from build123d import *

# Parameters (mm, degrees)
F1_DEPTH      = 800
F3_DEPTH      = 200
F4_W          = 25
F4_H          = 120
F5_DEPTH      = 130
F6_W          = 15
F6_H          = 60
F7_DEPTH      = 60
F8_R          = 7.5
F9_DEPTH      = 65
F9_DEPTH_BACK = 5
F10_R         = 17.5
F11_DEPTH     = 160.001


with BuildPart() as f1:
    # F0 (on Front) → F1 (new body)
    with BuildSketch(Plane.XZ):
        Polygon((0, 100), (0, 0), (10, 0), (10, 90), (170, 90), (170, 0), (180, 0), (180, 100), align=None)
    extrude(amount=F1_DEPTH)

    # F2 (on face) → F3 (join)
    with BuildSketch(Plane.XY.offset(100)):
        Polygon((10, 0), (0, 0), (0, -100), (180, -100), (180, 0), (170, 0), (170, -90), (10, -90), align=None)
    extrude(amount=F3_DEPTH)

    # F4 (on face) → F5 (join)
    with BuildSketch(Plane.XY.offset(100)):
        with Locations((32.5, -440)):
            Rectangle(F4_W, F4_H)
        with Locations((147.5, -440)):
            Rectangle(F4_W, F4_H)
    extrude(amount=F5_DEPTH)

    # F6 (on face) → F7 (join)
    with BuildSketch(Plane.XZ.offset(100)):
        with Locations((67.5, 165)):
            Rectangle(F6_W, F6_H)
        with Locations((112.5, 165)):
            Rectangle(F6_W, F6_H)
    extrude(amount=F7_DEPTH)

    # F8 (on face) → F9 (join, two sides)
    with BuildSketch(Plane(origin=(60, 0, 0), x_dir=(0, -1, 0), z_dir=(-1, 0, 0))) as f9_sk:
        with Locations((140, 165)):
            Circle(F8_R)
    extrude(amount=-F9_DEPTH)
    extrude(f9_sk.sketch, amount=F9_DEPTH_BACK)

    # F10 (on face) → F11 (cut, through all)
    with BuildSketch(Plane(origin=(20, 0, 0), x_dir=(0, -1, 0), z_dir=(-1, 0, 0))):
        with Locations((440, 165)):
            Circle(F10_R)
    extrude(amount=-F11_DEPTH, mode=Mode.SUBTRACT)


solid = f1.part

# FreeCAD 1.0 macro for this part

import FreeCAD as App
import Part
import Sketcher
from FreeCAD import Vector


def add_polygon(sketch, points):
    """Adds a closed chain of lines whose ends are joined by coincident constraints."""
    first, n = sketch.GeometryCount, len(points)
    for a, b in zip(points, points[1:] + points[:1]):
        sketch.addGeometry(Part.LineSegment(App.Vector(*a, 0), App.Vector(*b, 0)), False)
    for i in range(n):
        sketch.addConstraint(Sketcher.Constraint("Coincident", first + i, 2, first + (i + 1) % n, 1))

doc = App.newDocument("Part")
params = doc.addObject("Spreadsheet::Sheet", "Params")
for row, (alias, value) in enumerate([
    ("sketch1_width", "10 mm"),
    ("sketch1_width2", "160 mm"),
    ("sketch1_height", "100 mm"),
    ("sketch1_height2", "90 mm"),
    ("pad1_length", "800 mm"),
    ("sketch2_width", "10 mm"),
    ("sketch2_width2", "180 mm"),
    ("sketch2_height", "100 mm"),
    ("sketch2_height2", "90 mm"),
    ("pad2_length", "200 mm"),
    ("sketch3_width", "25 mm"),
    ("sketch3_height", "120 mm"),
    ("pad3_length", "130 mm"),
    ("sketch4_width", "15 mm"),
    ("sketch4_height", "60 mm"),
    ("pad4_length", "60 mm"),
    ("sketch5_diameter", "15 mm"),
    ("pad5_length", "65 mm"),
    ("pad5_length2", "5 mm"),
    ("sketch6_diameter", "35 mm"),
], start=1):
    params.set(f"A{row}", alias)
    params.set(f"B{row}", "=" + value)
    params.setAlias(f"B{row}", alias)

body = doc.addObject("PartDesign::Body", "Body")

# Sketch on XZ plane
sketch1 = doc.addObject("Sketcher::SketchObject", "Sketch")
body.addObject(sketch1)
sketch1.AttachmentSupport = (doc.XZ_Plane, [""])
sketch1.MapMode = "FlatFace"
add_polygon(sketch1, [(0, 100), (0, 0), (10, 0), (10, 90), (170, 90), (170, 0), (180, 0), (180, 100)])  # lines 0-7
sketch1.addConstraint([
    Sketcher.Constraint("Vertical", 0),
    Sketcher.Constraint("Horizontal", 1),
    Sketcher.Constraint("Vertical", 2),
    Sketcher.Constraint("Horizontal", 3),
    Sketcher.Constraint("Vertical", 4),
    Sketcher.Constraint("Horizontal", 5),
    Sketcher.Constraint("Vertical", 6),
    Sketcher.Constraint("Horizontal", 7),
    Sketcher.Constraint("Coincident", 0, 2, -1, 1),
    Sketcher.Constraint("PointOnObject", 4, 2, -1),
    Sketcher.Constraint("Equal", 1, 5),
    Sketcher.Constraint("DistanceX", 1, 1, 1, 2, 10.0),
    Sketcher.Constraint("DistanceX", 3, 1, 3, 2, 160.0),
    Sketcher.Constraint("DistanceY", 0, 2, 0, 1, 100.0),
    Sketcher.Constraint("DistanceY", 2, 1, 2, 2, 90.0),
])
sketch1.setExpression("Constraints[19]", "Params.sketch1_width")
sketch1.setExpression("Constraints[20]", "Params.sketch1_width2")
sketch1.setExpression("Constraints[21]", "Params.sketch1_height")
sketch1.setExpression("Constraints[22]", "Params.sketch1_height2")
pad1 = doc.addObject("PartDesign::Pad", "Pad")
body.addObject(pad1)
pad1.Profile = sketch1
pad1.setExpression("Length", "Params.pad1_length")

# Sketch on XY plane
sketch2 = doc.addObject("Sketcher::SketchObject", "Sketch001")
body.addObject(sketch2)
sketch2.AttachmentSupport = (doc.XY_Plane, [""])
sketch2.MapMode = "FlatFace"
sketch2.AttachmentOffset = App.Placement(Vector(0, 0, 100), App.Rotation())
add_polygon(sketch2, [(10, 0), (0, 0), (0, -100), (180, -100), (180, 0), (170, 0), (170, -90), (10, -90)])  # lines 0-7
sketch2.addConstraint([
    Sketcher.Constraint("Horizontal", 0),
    Sketcher.Constraint("Vertical", 1),
    Sketcher.Constraint("Horizontal", 2),
    Sketcher.Constraint("Vertical", 3),
    Sketcher.Constraint("Horizontal", 4),
    Sketcher.Constraint("Vertical", 5),
    Sketcher.Constraint("Horizontal", 6),
    Sketcher.Constraint("Vertical", 7),
    Sketcher.Constraint("Coincident", 0, 2, -1, 1),
    Sketcher.Constraint("PointOnObject", 3, 2, -1),
    Sketcher.Constraint("Equal", 0, 4),
    Sketcher.Constraint("DistanceX", 0, 2, 0, 1, 10.0),
    Sketcher.Constraint("DistanceX", 2, 1, 2, 2, 180.0),
    Sketcher.Constraint("DistanceY", 1, 2, 1, 1, 100.0),
    Sketcher.Constraint("DistanceY", 5, 2, 5, 1, 90.0),
])
sketch2.setExpression("Constraints[19]", "Params.sketch2_width")
sketch2.setExpression("Constraints[20]", "Params.sketch2_width2")
sketch2.setExpression("Constraints[21]", "Params.sketch2_height")
sketch2.setExpression("Constraints[22]", "Params.sketch2_height2")
pad2 = doc.addObject("PartDesign::Pad", "Pad001")
body.addObject(pad2)
pad2.Profile = sketch2
pad2.setExpression("Length", "Params.pad2_length")

# Sketch on XY plane
sketch3 = doc.addObject("Sketcher::SketchObject", "Sketch002")
body.addObject(sketch3)
sketch3.AttachmentSupport = (doc.XY_Plane, [""])
sketch3.MapMode = "FlatFace"
sketch3.AttachmentOffset = App.Placement(Vector(0, 0, 100), App.Rotation())
add_polygon(sketch3, [(20, -380), (20, -500), (45, -500), (45, -380)])  # lines 0-3
add_polygon(sketch3, [(135, -380), (135, -500), (160, -500), (160, -380)])  # lines 4-7
sketch3.addConstraint([
    Sketcher.Constraint("Vertical", 0),
    Sketcher.Constraint("Horizontal", 1),
    Sketcher.Constraint("Vertical", 2),
    Sketcher.Constraint("Horizontal", 3),
    Sketcher.Constraint("Vertical", 4),
    Sketcher.Constraint("Horizontal", 5),
    Sketcher.Constraint("Vertical", 6),
    Sketcher.Constraint("Horizontal", 7),
    Sketcher.Constraint("Horizontal", 1, 2, 4, 2),
    Sketcher.Constraint("Horizontal", 3, 2, 6, 2),
    Sketcher.Constraint("Equal", 3, 5),
    Sketcher.Constraint("DistanceX", 1, 1, 1, 2, 25.0),
    Sketcher.Constraint("DistanceY", 0, 2, 0, 1, 120.0),
    Sketcher.Constraint("DistanceX", -1, 1, 0, 2, 20.0),
    Sketcher.Constraint("DistanceY", 0, 2, -1, 1, 500.0),
    Sketcher.Constraint("DistanceX", -1, 1, 4, 2, 135.0),
])
sketch3.setExpression("Constraints[19]", "Params.sketch3_width")
sketch3.setExpression("Constraints[20]", "Params.sketch3_height")
pad3 = doc.addObject("PartDesign::Pad", "Pad002")
body.addObject(pad3)
pad3.Profile = sketch3
pad3.setExpression("Length", "Params.pad3_length")

# Sketch on XZ plane
sketch4 = doc.addObject("Sketcher::SketchObject", "Sketch003")
body.addObject(sketch4)
sketch4.AttachmentSupport = (doc.XZ_Plane, [""])
sketch4.MapMode = "FlatFace"
sketch4.AttachmentOffset = App.Placement(Vector(0, 0, 100), App.Rotation())
add_polygon(sketch4, [(60, 195), (60, 135), (75, 135), (75, 195)])  # lines 0-3
add_polygon(sketch4, [(105, 195), (105, 135), (120, 135), (120, 195)])  # lines 4-7
sketch4.addConstraint([
    Sketcher.Constraint("Vertical", 0),
    Sketcher.Constraint("Horizontal", 1),
    Sketcher.Constraint("Vertical", 2),
    Sketcher.Constraint("Horizontal", 3),
    Sketcher.Constraint("Vertical", 4),
    Sketcher.Constraint("Horizontal", 5),
    Sketcher.Constraint("Vertical", 6),
    Sketcher.Constraint("Horizontal", 7),
    Sketcher.Constraint("Horizontal", 1, 2, 4, 2),
    Sketcher.Constraint("Horizontal", 3, 2, 6, 2),
    Sketcher.Constraint("Equal", 3, 5),
    Sketcher.Constraint("DistanceX", 1, 1, 1, 2, 15.0),
    Sketcher.Constraint("DistanceY", 0, 2, 0, 1, 60.0),
    Sketcher.Constraint("DistanceX", -1, 1, 0, 2, 60.0),
    Sketcher.Constraint("DistanceY", -1, 1, 0, 2, 135.0),
    Sketcher.Constraint("DistanceX", -1, 1, 4, 2, 105.0),
])
sketch4.setExpression("Constraints[19]", "Params.sketch4_width")
sketch4.setExpression("Constraints[20]", "Params.sketch4_height")
pad4 = doc.addObject("PartDesign::Pad", "Pad003")
body.addObject(pad4)
pad4.Profile = sketch4
pad4.setExpression("Length", "Params.pad4_length")

# Sketch on YZ plane
sketch5 = doc.addObject("Sketcher::SketchObject", "Sketch004")
body.addObject(sketch5)
sketch5.AttachmentSupport = (doc.YZ_Plane, [""])
sketch5.MapMode = "FlatFace"
sketch5.AttachmentOffset = App.Placement(Vector(0, 0, 60), App.Rotation())
sketch5.addGeometry(Part.Circle(Vector(-140, 165, 0), Vector(0, 0, 1), 8), False)
sketch5.addConstraint([
    Sketcher.Constraint("Diameter", 0, 15.0),
    Sketcher.Constraint("DistanceX", 0, 3, -1, 1, 140.0),
    Sketcher.Constraint("DistanceY", -1, 1, 0, 3, 165.0),
])
sketch5.setExpression("Constraints[0]", "Params.sketch5_diameter")
pad5 = doc.addObject("PartDesign::Pad", "Pad004")
body.addObject(pad5)
pad5.Profile = sketch5
pad5.Type = "TwoLengths"
pad5.setExpression("Length", "Params.pad5_length")
pad5.setExpression("Length2", "Params.pad5_length2")

# Sketch on YZ plane
sketch6 = doc.addObject("Sketcher::SketchObject", "Sketch005")
body.addObject(sketch6)
sketch6.AttachmentSupport = (doc.YZ_Plane, [""])
sketch6.MapMode = "FlatFace"
sketch6.AttachmentOffset = App.Placement(Vector(0, 0, 20), App.Rotation())
sketch6.addGeometry(Part.Circle(Vector(-440, 165, 0), Vector(0, 0, 1), 18), False)
sketch6.addConstraint([
    Sketcher.Constraint("Diameter", 0, 35.0),
    Sketcher.Constraint("DistanceX", 0, 3, -1, 1, 440.0),
    Sketcher.Constraint("DistanceY", -1, 1, 0, 3, 165.0),
])
sketch6.setExpression("Constraints[0]", "Params.sketch6_diameter")
pocket1 = doc.addObject("PartDesign::Pocket", "Pocket")
body.addObject(pocket1)
pocket1.Profile = sketch6
pocket1.Type = "ThroughAll"
pocket1.Reversed = True

doc.recompute()
